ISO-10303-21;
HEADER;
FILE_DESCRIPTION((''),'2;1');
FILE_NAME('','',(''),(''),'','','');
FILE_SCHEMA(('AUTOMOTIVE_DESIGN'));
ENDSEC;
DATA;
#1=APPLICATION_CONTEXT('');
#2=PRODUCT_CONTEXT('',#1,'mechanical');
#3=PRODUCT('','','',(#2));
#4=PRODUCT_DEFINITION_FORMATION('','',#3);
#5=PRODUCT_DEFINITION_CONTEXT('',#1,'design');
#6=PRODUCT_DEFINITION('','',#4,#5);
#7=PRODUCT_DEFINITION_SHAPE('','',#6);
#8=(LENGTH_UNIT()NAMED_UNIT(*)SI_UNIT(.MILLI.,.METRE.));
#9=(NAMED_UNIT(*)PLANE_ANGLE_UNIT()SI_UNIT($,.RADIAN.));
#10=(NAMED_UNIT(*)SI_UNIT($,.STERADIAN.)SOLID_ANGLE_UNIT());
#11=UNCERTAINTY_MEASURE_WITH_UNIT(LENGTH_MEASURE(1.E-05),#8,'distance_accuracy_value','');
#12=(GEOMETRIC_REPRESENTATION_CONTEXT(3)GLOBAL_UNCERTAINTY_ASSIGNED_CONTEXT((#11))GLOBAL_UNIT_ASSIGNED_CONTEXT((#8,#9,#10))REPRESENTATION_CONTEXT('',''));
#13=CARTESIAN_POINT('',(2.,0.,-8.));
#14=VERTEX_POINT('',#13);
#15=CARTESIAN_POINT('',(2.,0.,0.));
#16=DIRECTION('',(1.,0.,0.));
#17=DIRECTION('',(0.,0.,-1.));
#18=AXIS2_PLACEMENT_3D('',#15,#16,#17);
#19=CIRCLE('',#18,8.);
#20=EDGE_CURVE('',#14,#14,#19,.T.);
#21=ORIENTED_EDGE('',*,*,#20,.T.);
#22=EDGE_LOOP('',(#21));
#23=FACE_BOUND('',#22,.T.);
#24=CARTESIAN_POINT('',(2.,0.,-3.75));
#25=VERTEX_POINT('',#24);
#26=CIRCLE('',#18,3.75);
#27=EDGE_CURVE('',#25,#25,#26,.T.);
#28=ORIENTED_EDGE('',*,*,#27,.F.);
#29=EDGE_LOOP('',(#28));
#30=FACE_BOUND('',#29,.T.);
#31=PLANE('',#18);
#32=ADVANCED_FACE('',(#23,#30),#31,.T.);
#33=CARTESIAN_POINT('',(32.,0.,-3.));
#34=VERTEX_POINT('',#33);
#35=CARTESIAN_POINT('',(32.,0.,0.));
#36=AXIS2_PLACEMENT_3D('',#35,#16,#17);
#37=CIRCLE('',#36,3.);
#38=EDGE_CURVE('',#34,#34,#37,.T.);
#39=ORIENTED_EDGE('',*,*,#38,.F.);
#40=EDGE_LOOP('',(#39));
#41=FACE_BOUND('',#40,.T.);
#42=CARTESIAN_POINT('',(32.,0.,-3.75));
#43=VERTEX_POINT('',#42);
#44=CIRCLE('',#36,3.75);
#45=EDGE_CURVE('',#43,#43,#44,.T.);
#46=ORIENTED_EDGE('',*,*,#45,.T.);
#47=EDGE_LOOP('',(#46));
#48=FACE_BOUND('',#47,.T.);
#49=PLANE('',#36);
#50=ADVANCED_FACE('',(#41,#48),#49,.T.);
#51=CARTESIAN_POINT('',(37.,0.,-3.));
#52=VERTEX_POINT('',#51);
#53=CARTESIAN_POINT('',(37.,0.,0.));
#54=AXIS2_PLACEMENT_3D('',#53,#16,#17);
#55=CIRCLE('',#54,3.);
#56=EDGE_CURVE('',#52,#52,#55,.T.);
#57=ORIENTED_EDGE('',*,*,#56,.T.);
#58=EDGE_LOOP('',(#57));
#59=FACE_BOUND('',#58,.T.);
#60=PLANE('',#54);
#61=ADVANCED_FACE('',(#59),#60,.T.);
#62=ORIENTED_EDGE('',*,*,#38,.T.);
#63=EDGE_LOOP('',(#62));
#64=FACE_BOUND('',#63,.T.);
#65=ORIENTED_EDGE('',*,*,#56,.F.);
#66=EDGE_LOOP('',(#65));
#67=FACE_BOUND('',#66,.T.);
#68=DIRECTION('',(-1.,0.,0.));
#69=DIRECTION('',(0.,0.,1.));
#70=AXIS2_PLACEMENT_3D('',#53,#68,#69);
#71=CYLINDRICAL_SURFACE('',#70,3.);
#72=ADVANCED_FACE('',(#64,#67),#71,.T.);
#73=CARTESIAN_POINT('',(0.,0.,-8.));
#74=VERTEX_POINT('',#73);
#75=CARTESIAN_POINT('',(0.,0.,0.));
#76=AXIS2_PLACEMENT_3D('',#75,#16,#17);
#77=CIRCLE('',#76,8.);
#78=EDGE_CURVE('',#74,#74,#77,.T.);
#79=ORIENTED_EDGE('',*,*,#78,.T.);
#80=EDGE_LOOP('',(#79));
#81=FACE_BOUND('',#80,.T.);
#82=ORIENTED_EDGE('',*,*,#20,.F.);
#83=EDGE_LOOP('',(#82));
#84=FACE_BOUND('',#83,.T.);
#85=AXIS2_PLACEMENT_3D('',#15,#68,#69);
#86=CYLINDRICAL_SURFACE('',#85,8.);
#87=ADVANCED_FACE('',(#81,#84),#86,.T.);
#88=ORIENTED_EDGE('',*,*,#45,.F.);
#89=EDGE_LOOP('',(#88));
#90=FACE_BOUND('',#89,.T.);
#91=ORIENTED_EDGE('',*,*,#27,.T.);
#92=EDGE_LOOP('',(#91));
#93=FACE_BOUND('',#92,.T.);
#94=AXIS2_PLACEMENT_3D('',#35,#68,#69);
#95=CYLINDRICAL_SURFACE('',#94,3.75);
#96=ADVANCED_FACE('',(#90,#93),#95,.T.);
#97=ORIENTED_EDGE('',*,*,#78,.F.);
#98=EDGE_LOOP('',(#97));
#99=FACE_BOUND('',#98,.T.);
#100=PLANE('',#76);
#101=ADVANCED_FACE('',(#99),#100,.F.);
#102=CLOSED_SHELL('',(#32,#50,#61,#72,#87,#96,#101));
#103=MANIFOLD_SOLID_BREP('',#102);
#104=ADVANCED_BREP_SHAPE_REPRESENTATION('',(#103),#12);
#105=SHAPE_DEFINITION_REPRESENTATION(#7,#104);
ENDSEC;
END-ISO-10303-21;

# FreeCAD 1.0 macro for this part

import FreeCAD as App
import Part
import Sketcher

doc = App.newDocument("Part")
params = doc.addObject("Spreadsheet::Sheet", "Params")
for row, (alias, value) in enumerate([
    ("sketch1_diameter", "16 mm"),
    ("pad1_length", "2 mm"),
    ("sketch2_diameter", "7.5 mm"),
    ("pad2_length", "30 mm"),
    ("sketch3_diameter", "6 mm"),
    ("pad3_length", "5 mm"),
], start=1):
    params.set(f"A{row}", alias)
    params.set(f"B{row}", "=" + value)
    params.setAlias(f"B{row}", alias)

body = doc.addObject("PartDesign::Body", "Body")

# Sketch on YZ plane
sketch1 = body.newObject("Sketcher::SketchObject", "Sketch")
sketch1.AttachmentSupport = (doc.getObject("YZ_Plane"), [""])
sketch1.MapMode = "FlatFace"
sketch1.addGeometry(Part.Circle(App.Vector(0, 0, 0), App.Vector(0, 0, 1), 8), False)
sketch1.addConstraint([
    Sketcher.Constraint("Coincident", 0, 3, -1, 1),
    Sketcher.Constraint("Diameter", 0, 16.0),
])
sketch1.setExpression("Constraints[1]", "Params.sketch1_diameter")
pad1 = body.newObject("PartDesign::Pad", "Pad")
pad1.Profile = sketch1
pad1.setExpression("Length", "Params.pad1_length")

# Sketch on YZ plane
sketch2 = body.newObject("Sketcher::SketchObject", "Sketch001")
sketch2.AttachmentSupport = (doc.getObject("YZ_Plane"), [""])
sketch2.MapMode = "FlatFace"
sketch2.AttachmentOffset = App.Placement(App.Vector(0, 0, 2), App.Rotation())
sketch2.addGeometry(Part.Circle(App.Vector(0, 0, 0), App.Vector(0, 0, 1), 3.8), False)
sketch2.addConstraint([
    Sketcher.Constraint("Coincident", 0, 3, -1, 1),
    Sketcher.Constraint("Diameter", 0, 7.5),
])
sketch2.setExpression("Constraints[1]", "Params.sketch2_diameter")
pad2 = body.newObject("PartDesign::Pad", "Pad001")
pad2.Profile = sketch2
pad2.setExpression("Length", "Params.pad2_length")

# Sketch on YZ plane
sketch3 = body.newObject("Sketcher::SketchObject", "Sketch002")
sketch3.AttachmentSupport = (doc.getObject("YZ_Plane"), [""])
sketch3.MapMode = "FlatFace"
sketch3.AttachmentOffset = App.Placement(App.Vector(0, 0, 32), App.Rotation())
sketch3.addGeometry(Part.Circle(App.Vector(0, 0, 0), App.Vector(0, 0, 1), 3), False)
sketch3.addConstraint([
    Sketcher.Constraint("Coincident", 0, 3, -1, 1),
    Sketcher.Constraint("Diameter", 0, 6.0),
])
sketch3.setExpression("Constraints[1]", "Params.sketch3_diameter")
pad3 = body.newObject("PartDesign::Pad", "Pad002")
pad3.Profile = sketch3
pad3.setExpression("Length", "Params.pad3_length")

doc.recompute()
